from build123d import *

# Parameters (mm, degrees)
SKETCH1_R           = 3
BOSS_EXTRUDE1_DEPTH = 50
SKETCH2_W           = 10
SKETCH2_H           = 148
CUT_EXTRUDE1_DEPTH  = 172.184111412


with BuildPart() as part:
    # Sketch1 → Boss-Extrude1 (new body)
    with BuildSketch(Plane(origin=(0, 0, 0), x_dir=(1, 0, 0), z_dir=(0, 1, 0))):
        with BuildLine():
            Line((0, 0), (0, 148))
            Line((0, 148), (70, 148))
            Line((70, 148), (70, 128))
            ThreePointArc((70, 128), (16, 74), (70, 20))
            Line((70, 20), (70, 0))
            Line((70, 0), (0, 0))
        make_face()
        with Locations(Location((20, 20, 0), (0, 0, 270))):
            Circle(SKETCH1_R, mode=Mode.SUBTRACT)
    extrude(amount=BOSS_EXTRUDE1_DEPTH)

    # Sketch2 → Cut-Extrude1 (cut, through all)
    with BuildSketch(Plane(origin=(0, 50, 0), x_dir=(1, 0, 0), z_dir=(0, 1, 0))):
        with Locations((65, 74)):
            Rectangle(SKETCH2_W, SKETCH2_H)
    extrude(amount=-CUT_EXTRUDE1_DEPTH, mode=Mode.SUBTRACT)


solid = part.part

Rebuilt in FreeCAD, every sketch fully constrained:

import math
import FreeCAD as App
import Part
import Sketcher

doc = App.newDocument("Part")
body = doc.addObject("PartDesign::Body", "Body")

# Sketch on XZ plane
sketch1 = body.newObject("Sketcher::SketchObject", "Sketch")
sketch1.AttachmentSupport = (doc.getObject("XZ_Plane"), [""])
sketch1.MapMode = "FlatFace"
sketch1.addGeometry(Part.LineSegment(App.Vector(0, -148, 0), App.Vector(0, 0, 0)), False)
sketch1.addGeometry(Part.LineSegment(App.Vector(0, 0, 0), App.Vector(70, 0, 0)), False)
sketch1.addGeometry(Part.LineSegment(App.Vector(70, 0, 0), App.Vector(70, -20, 0)), False)
sketch1.addGeometry(Part.ArcOfCircle(Part.Circle(App.Vector(70, -74, 0), App.Vector(0, 0, 1), 54), math.radians(90), math.radians(270)), False)
sketch1.addGeometry(Part.LineSegment(App.Vector(70, -128, 0), App.Vector(70, -148, 0)), False)
sketch1.addGeometry(Part.LineSegment(App.Vector(70, -148, 0), App.Vector(0, -148, 0)), False)
sketch1.addGeometry(Part.Circle(App.Vector(20, -20, 0), App.Vector(0, 0, 1), 3), False)
sketch1.addConstraint(Sketcher.Constraint("Coincident", 0, 2, 1, 1))
sketch1.addConstraint(Sketcher.Constraint("Coincident", 1, 2, 2, 1))
sketch1.addConstraint(Sketcher.Constraint("Coincident", 2, 2, 3, 1))
sketch1.addConstraint(Sketcher.Constraint("Coincident", 3, 2, 4, 1))
sketch1.addConstraint(Sketcher.Constraint("Coincident", 4, 2, 5, 1))
sketch1.addConstraint(Sketcher.Constraint("Coincident", 5, 2, 0, 1))
sketch1.addConstraint(Sketcher.Constraint("Vertical", 0))
sketch1.addConstraint(Sketcher.Constraint("Horizontal", 1))
sketch1.addConstraint(Sketcher.Constraint("Vertical", 2))
sketch1.addConstraint(Sketcher.Constraint("Vertical", 4))
sketch1.addConstraint(Sketcher.Constraint("Horizontal", 5))
sketch1.addConstraint(Sketcher.Constraint("Coincident", 0, 2, -1, 1))
sketch1.addConstraint(Sketcher.Constraint("Horizontal", 6, 3, 2, 2))
sketch1.addConstraint(Sketcher.Constraint("Vertical", 3, 3, 1, 2))
sketch1.addConstraint(Sketcher.Constraint("Vertical", 2, 2, 3, 2))
sketch1.addConstraint(Sketcher.Constraint("Equal", 2, 4))
sketch1.addConstraint(Sketcher.Constraint("Diameter", 6, 6.0))
sketch1.addConstraint(Sketcher.Constraint("Radius", 3, 54.0))
sketch1.addConstraint(Sketcher.Constraint("DistanceX", 1, 1, 1, 2, 70.0))
sketch1.addConstraint(Sketcher.Constraint("DistanceY", 0, 1, 0, 2, 148.0))
sketch1.addConstraint(Sketcher.Constraint("DistanceX", -1, 1, 6, 3, 20.0))
pad1 = body.newObject("PartDesign::Pad", "Pad")
pad1.Profile = sketch1
pad1.Length = 50
pad1.Reversed = True

# Sketch on XZ plane
sketch2 = body.newObject("Sketcher::SketchObject", "Sketch001")
sketch2.AttachmentSupport = (doc.getObject("XZ_Plane"), [""])
sketch2.MapMode = "FlatFace"
sketch2.AttachmentOffset = App.Placement(App.Vector(0, 0, -50), App.Rotation())
sketch2.addGeometry(Part.LineSegment(App.Vector(60, -148, 0), App.Vector(60, 0, 0)), False)
sketch2.addGeometry(Part.LineSegment(App.Vector(60, 0, 0), App.Vector(70, 0, 0)), False)
sketch2.addGeometry(Part.LineSegment(App.Vector(70, 0, 0), App.Vector(70, -148, 0)), False)
sketch2.addGeometry(Part.LineSegment(App.Vector(70, -148, 0), App.Vector(60, -148, 0)), False)
sketch2.addConstraint(Sketcher.Constraint("Coincident", 0, 2, 1, 1))
sketch2.addConstraint(Sketcher.Constraint("Coincident", 1, 2, 2, 1))
sketch2.addConstraint(Sketcher.Constraint("Coincident", 2, 2, 3, 1))
sketch2.addConstraint(Sketcher.Constraint("Coincident", 3, 2, 0, 1))
sketch2.addConstraint(Sketcher.Constraint("Vertical", 0))
sketch2.addConstraint(Sketcher.Constraint("Horizontal", 1))
sketch2.addConstraint(Sketcher.Constraint("Vertical", 2))
sketch2.addConstraint(Sketcher.Constraint("Horizontal", 3))
sketch2.addConstraint(Sketcher.Constraint("PointOnObject", 0, 2, -1))
sketch2.addConstraint(Sketcher.Constraint("DistanceX", 1, 1, 1, 2, 10.0))
sketch2.addConstraint(Sketcher.Constraint("DistanceY", 0, 1, 0, 2, 148.0))
sketch2.addConstraint(Sketcher.Constraint("DistanceX", -1, 1, 0, 2, 60.0))
pocket1 = body.newObject("PartDesign::Pocket", "Pocket")
pocket1.Profile = sketch2
pocket1.Type = "ThroughAll"
pocket1.Reversed = True

doc.recompute()
